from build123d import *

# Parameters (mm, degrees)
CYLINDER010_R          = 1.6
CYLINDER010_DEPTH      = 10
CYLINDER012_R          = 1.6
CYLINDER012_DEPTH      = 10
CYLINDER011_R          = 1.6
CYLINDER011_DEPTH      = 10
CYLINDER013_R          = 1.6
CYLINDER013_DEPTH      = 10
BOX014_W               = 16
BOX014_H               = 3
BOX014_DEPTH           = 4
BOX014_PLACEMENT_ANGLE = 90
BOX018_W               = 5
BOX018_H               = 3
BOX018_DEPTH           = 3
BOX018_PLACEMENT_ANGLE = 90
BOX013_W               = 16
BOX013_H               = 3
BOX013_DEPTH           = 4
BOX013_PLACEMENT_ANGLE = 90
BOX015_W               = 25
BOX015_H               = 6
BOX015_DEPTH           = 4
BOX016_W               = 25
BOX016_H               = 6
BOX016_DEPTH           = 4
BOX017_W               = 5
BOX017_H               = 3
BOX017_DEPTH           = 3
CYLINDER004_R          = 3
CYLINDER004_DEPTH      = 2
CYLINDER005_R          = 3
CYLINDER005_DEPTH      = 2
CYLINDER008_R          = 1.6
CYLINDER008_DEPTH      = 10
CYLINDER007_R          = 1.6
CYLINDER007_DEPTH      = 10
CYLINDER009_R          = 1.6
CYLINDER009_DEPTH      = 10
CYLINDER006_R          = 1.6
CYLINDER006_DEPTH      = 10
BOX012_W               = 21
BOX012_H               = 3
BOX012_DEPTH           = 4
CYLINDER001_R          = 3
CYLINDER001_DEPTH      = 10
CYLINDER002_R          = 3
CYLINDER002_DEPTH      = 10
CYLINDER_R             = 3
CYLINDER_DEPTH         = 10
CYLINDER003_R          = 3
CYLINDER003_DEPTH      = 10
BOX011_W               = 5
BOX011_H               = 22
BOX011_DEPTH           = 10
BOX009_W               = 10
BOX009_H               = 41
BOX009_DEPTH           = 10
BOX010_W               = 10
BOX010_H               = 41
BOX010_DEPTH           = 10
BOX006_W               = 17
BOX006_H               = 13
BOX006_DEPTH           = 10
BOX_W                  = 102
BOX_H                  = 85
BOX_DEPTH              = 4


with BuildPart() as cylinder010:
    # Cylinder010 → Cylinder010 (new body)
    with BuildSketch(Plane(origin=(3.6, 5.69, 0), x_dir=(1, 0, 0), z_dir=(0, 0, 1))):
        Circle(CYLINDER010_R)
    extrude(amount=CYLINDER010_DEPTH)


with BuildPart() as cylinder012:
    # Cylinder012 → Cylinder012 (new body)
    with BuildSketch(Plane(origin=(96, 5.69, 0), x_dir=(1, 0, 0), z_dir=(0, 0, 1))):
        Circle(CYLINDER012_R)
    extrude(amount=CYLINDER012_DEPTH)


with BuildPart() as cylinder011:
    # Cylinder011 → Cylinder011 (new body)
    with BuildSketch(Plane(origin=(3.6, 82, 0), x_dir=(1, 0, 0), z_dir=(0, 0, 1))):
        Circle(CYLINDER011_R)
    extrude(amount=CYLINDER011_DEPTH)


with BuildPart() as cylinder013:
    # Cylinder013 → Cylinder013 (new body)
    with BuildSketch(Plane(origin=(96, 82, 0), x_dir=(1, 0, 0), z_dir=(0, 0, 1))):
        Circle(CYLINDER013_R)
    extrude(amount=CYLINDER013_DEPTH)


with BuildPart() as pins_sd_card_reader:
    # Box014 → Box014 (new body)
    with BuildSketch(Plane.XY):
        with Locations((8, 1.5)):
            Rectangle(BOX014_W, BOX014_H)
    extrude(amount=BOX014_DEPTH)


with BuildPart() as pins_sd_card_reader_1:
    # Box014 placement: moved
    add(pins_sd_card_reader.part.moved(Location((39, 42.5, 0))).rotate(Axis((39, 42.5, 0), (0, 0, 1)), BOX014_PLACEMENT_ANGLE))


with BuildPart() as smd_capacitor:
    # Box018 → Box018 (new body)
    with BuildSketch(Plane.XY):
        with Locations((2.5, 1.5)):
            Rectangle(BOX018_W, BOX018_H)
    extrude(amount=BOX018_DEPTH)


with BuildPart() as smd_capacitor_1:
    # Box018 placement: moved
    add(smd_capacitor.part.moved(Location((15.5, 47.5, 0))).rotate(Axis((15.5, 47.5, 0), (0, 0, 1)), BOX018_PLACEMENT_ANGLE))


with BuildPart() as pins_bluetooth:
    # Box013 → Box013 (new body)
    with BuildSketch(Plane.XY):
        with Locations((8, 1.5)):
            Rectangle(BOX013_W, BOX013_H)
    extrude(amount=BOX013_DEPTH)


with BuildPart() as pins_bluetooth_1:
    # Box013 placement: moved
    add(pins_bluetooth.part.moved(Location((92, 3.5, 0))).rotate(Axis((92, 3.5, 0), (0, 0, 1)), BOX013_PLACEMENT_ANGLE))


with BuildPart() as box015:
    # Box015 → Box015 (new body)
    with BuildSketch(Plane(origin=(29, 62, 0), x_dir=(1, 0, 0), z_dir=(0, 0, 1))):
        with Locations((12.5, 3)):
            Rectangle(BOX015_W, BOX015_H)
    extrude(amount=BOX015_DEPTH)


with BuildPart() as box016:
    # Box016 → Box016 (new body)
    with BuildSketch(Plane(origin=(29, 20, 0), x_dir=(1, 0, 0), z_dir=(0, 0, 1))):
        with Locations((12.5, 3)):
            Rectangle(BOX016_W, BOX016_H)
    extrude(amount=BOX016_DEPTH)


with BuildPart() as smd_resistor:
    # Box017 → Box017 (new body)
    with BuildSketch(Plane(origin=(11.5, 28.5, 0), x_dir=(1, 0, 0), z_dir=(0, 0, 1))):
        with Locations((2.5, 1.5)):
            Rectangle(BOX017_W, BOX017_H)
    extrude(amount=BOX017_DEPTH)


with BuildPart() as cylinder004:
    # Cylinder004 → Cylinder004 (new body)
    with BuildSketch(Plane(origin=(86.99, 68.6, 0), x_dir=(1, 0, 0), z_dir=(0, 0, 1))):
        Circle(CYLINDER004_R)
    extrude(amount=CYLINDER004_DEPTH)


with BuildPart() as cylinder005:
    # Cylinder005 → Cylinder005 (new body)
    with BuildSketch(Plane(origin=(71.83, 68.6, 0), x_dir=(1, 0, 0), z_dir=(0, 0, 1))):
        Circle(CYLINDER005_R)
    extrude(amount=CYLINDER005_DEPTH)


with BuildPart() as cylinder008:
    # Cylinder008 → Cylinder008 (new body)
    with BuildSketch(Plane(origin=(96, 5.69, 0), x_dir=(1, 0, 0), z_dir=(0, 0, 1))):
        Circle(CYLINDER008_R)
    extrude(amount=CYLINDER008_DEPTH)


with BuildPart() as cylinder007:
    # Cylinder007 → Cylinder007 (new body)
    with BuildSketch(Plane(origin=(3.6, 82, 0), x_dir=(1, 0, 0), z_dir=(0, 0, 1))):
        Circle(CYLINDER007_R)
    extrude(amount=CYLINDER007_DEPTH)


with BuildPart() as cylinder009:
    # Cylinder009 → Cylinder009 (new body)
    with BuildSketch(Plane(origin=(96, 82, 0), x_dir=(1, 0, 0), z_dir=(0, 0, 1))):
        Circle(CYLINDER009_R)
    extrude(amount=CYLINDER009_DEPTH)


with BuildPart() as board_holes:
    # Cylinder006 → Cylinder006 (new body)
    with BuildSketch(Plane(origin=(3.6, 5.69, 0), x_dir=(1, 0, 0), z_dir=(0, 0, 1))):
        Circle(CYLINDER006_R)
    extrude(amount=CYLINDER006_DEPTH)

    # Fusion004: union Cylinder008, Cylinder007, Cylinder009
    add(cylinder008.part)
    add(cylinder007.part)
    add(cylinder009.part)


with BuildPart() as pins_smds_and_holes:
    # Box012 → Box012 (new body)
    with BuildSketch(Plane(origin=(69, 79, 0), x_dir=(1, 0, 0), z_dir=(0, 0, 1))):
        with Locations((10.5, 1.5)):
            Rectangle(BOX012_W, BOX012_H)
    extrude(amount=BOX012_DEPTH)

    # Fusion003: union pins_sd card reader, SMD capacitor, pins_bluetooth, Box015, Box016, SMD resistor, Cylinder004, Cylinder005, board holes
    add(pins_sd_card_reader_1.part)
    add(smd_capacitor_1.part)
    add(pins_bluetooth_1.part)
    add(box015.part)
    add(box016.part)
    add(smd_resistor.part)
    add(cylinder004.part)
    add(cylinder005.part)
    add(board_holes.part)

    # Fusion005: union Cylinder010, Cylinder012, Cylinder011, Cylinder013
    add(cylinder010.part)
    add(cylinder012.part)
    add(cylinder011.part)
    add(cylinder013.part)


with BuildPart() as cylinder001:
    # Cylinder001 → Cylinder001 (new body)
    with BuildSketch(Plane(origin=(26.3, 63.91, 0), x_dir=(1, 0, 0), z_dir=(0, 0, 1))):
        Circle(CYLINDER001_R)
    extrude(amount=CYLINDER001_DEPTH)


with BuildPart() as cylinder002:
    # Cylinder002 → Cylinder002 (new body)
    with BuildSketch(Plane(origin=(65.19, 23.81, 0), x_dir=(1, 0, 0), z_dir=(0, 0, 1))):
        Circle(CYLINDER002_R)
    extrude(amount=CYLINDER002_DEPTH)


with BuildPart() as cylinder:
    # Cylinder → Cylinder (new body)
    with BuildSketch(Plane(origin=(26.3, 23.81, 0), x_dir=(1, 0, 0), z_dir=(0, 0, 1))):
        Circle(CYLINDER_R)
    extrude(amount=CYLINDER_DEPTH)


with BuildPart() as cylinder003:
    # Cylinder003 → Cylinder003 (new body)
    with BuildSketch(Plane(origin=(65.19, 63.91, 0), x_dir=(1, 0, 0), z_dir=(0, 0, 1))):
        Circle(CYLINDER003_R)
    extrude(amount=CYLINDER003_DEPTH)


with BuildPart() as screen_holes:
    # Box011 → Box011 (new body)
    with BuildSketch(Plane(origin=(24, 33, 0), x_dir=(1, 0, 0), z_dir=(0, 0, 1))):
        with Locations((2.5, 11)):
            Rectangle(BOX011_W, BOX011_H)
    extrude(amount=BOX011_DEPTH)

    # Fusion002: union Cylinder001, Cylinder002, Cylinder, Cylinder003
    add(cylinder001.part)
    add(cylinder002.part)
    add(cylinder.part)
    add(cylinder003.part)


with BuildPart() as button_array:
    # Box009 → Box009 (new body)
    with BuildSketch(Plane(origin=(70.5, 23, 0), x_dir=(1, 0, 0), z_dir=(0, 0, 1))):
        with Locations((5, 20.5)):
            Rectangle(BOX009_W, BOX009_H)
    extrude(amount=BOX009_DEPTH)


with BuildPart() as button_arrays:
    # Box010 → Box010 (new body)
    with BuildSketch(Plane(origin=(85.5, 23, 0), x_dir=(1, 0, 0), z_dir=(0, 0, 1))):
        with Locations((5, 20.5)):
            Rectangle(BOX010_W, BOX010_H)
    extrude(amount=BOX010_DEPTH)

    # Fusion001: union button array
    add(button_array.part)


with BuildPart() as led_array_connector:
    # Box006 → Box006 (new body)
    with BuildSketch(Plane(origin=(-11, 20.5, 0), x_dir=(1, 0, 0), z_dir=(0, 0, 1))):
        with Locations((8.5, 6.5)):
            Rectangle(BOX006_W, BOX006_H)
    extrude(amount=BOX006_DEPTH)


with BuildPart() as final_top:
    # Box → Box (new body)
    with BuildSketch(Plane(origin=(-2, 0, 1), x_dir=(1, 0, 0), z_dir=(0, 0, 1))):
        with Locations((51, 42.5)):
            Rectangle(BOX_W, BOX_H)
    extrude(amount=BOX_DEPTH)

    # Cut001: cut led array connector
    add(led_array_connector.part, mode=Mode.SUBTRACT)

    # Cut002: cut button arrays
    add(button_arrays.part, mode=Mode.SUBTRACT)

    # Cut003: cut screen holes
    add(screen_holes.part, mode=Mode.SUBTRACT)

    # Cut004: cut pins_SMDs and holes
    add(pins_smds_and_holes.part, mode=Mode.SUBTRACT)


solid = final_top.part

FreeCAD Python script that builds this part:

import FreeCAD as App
import Part
import Sketcher
from FreeCAD import Vector
Q = App.Units.Quantity

doc = App.newDocument("Part")
body = doc.addObject("PartDesign::Body", "Body")

sketch1 = body.newObject("Sketcher::SketchObject", "Sketch")
sketch1.AttachmentSupport = (doc.getObject("XY_Plane"), [""])
sketch1.MapMode = "FlatFace"
sketch1.addGeometry(Part.Circle(Vector(3.6, 5.7, 0), Vector(0, 0, 1), 1.6), False)
sketch1.addConstraint(Sketcher.Constraint("Diameter", 0, Q("3.2 mm")))
sketch1.addConstraint(Sketcher.Constraint("DistanceX", -1, 1, 0, 3, Q("3.6 mm")))
sketch1.addConstraint(Sketcher.Constraint("DistanceY", -1, 1, 0, 3, Q("5.69 mm")))
pad1 = body.newObject("PartDesign::Pad", "Pad")
pad1.Profile = sketch1
pad1.Length = 10
body2 = doc.addObject("PartDesign::Body", "Body001")

sketch2 = body2.newObject("Sketcher::SketchObject", "Sketch001")
sketch2.AttachmentSupport = (doc.getObject("XY_Plane001"), [""])
sketch2.MapMode = "FlatFace"
sketch2.addGeometry(Part.Circle(Vector(96, 5.7, 0), Vector(0, 0, 1), 1.6), False)
sketch2.addConstraint(Sketcher.Constraint("Diameter", 0, Q("3.2 mm")))
sketch2.addConstraint(Sketcher.Constraint("DistanceX", -1, 1, 0, 3, Q("96 mm")))
sketch2.addConstraint(Sketcher.Constraint("DistanceY", -1, 1, 0, 3, Q("5.69 mm")))
pad2 = body2.newObject("PartDesign::Pad", "Pad001")
pad2.Profile = sketch2
pad2.Length = 10
body3 = doc.addObject("PartDesign::Body", "Body002")

sketch3 = body3.newObject("Sketcher::SketchObject", "Sketch002")
sketch3.AttachmentSupport = (doc.getObject("XY_Plane002"), [""])
sketch3.MapMode = "FlatFace"
sketch3.addGeometry(Part.Circle(Vector(3.6, 82, 0), Vector(0, 0, 1), 1.6), False)
sketch3.addConstraint(Sketcher.Constraint("Diameter", 0, Q("3.2 mm")))
sketch3.addConstraint(Sketcher.Constraint("DistanceY", -1, 1, 0, 3, Q("82 mm")))
sketch3.addConstraint(Sketcher.Constraint("DistanceX", -1, 1, 0, 3, Q("3.6 mm")))
pad3 = body3.newObject("PartDesign::Pad", "Pad002")
pad3.Profile = sketch3
pad3.Length = 10
body4 = doc.addObject("PartDesign::Body", "Body003")

sketch4 = body4.newObject("Sketcher::SketchObject", "Sketch003")
sketch4.AttachmentSupport = (doc.getObject("XY_Plane003"), [""])
sketch4.MapMode = "FlatFace"
sketch4.addGeometry(Part.Circle(Vector(96, 82, 0), Vector(0, 0, 1), 1.6), False)
sketch4.addConstraint(Sketcher.Constraint("Diameter", 0, Q("3.2 mm")))
sketch4.addConstraint(Sketcher.Constraint("DistanceX", -1, 1, 0, 3, Q("96 mm")))
sketch4.addConstraint(Sketcher.Constraint("DistanceY", -1, 1, 0, 3, Q("82 mm")))
pad4 = body4.newObject("PartDesign::Pad", "Pad003")
pad4.Profile = sketch4
pad4.Length = 10
body5 = doc.addObject("PartDesign::Body", "Body004")

sketch5 = body5.newObject("Sketcher::SketchObject", "Sketch004")
sketch5.AttachmentSupport = (doc.getObject("XY_Plane004"), [""])
sketch5.MapMode = "FlatFace"
sketch5.addGeometry(Part.LineSegment(Vector(0, 3, 0), Vector(0, 0, 0)), False)
sketch5.addGeometry(Part.LineSegment(Vector(0, 0, 0), Vector(16, 0, 0)), False)
sketch5.addGeometry(Part.LineSegment(Vector(16, 0, 0), Vector(16, 3, 0)), False)
sketch5.addGeometry(Part.LineSegment(Vector(16, 3, 0), Vector(0, 3, 0)), False)
sketch5.addConstraint(Sketcher.Constraint("Coincident", 0, 2, 1, 1))
sketch5.addConstraint(Sketcher.Constraint("Coincident", 1, 2, 2, 1))
sketch5.addConstraint(Sketcher.Constraint("Coincident", 2, 2, 3, 1))
sketch5.addConstraint(Sketcher.Constraint("Coincident", 3, 2, 0, 1))
sketch5.addConstraint(Sketcher.Constraint("Vertical", 0))
sketch5.addConstraint(Sketcher.Constraint("Horizontal", 1))
sketch5.addConstraint(Sketcher.Constraint("Vertical", 2))
sketch5.addConstraint(Sketcher.Constraint("Horizontal", 3))
sketch5.addConstraint(Sketcher.Constraint("Coincident", 0, 2, -1, 1))
sketch5.addConstraint(Sketcher.Constraint("DistanceX", 1, 1, 1, 2, Q("16 mm")))
sketch5.addConstraint(Sketcher.Constraint("DistanceY", 0, 2, 0, 1, Q("3 mm")))
pad5 = body5.newObject("PartDesign::Pad", "Pad004")
pad5.Profile = sketch5
pad5.Length = 4
body6 = doc.addObject("PartDesign::Body", "Body005")
doc.recompute()

body5.Placement = App.Placement(Vector(39, 42.5, 0), App.Rotation(Vector(0, 0, 1), 90))
boolean = body6.newObject("PartDesign::Boolean", "Boolean")
boolean.Type = "Fuse"
boolean.addObjects([body5])
body7 = doc.addObject("PartDesign::Body", "Body006")

sketch6 = body7.newObject("Sketcher::SketchObject", "Sketch005")
sketch6.AttachmentSupport = (doc.getObject("XY_Plane006"), [""])
sketch6.MapMode = "FlatFace"
sketch6.addGeometry(Part.LineSegment(Vector(0, 3, 0), Vector(0, 0, 0)), False)
sketch6.addGeometry(Part.LineSegment(Vector(0, 0, 0), Vector(5, 0, 0)), False)
sketch6.addGeometry(Part.LineSegment(Vector(5, 0, 0), Vector(5, 3, 0)), False)
sketch6.addGeometry(Part.LineSegment(Vector(5, 3, 0), Vector(0, 3, 0)), False)
sketch6.addConstraint(Sketcher.Constraint("Coincident", 0, 2, 1, 1))
sketch6.addConstraint(Sketcher.Constraint("Coincident", 1, 2, 2, 1))
sketch6.addConstraint(Sketcher.Constraint("Coincident", 2, 2, 3, 1))
sketch6.addConstraint(Sketcher.Constraint("Coincident", 3, 2, 0, 1))
sketch6.addConstraint(Sketcher.Constraint("Vertical", 0))
sketch6.addConstraint(Sketcher.Constraint("Horizontal", 1))
sketch6.addConstraint(Sketcher.Constraint("Vertical", 2))
sketch6.addConstraint(Sketcher.Constraint("Horizontal", 3))
sketch6.addConstraint(Sketcher.Constraint("Coincident", 0, 2, -1, 1))
sketch6.addConstraint(Sketcher.Constraint("DistanceX", 1, 1, 1, 2, Q("5 mm")))
sketch6.addConstraint(Sketcher.Constraint("DistanceY", 0, 2, 0, 1, Q("3 mm")))
pad6 = body7.newObject("PartDesign::Pad", "Pad005")
pad6.Profile = sketch6
pad6.Length = 3
body8 = doc.addObject("PartDesign::Body", "Body007")
doc.recompute()

body7.Placement = App.Placement(Vector(15.5, 47.5, 0), App.Rotation(Vector(0, 0, 1), 90))
boolean2 = body8.newObject("PartDesign::Boolean", "Boolean001")
boolean2.Type = "Fuse"
boolean2.addObjects([body7])
body9 = doc.addObject("PartDesign::Body", "Body008")

sketch7 = body9.newObject("Sketcher::SketchObject", "Sketch006")
sketch7.AttachmentSupport = (doc.getObject("XY_Plane008"), [""])
sketch7.MapMode = "FlatFace"
sketch7.addGeometry(Part.LineSegment(Vector(0, 3, 0), Vector(0, 0, 0)), False)
sketch7.addGeometry(Part.LineSegment(Vector(0, 0, 0), Vector(16, 0, 0)), False)
sketch7.addGeometry(Part.LineSegment(Vector(16, 0, 0), Vector(16, 3, 0)), False)
sketch7.addGeometry(Part.LineSegment(Vector(16, 3, 0), Vector(0, 3, 0)), False)
sketch7.addConstraint(Sketcher.Constraint("Coincident", 0, 2, 1, 1))
sketch7.addConstraint(Sketcher.Constraint("Coincident", 1, 2, 2, 1))
sketch7.addConstraint(Sketcher.Constraint("Coincident", 2, 2, 3, 1))
sketch7.addConstraint(Sketcher.Constraint("Coincident", 3, 2, 0, 1))
sketch7.addConstraint(Sketcher.Constraint("Vertical", 0))
sketch7.addConstraint(Sketcher.Constraint("Horizontal", 1))
sketch7.addConstraint(Sketcher.Constraint("Vertical", 2))
sketch7.addConstraint(Sketcher.Constraint("Horizontal", 3))
sketch7.addConstraint(Sketcher.Constraint("Coincident", 0, 2, -1, 1))
sketch7.addConstraint(Sketcher.Constraint("DistanceX", 1, 1, 1, 2, Q("16 mm")))
sketch7.addConstraint(Sketcher.Constraint("DistanceY", 0, 2, 0, 1, Q("3 mm")))
pad7 = body9.newObject("PartDesign::Pad", "Pad006")
pad7.Profile = sketch7
pad7.Length = 4
body10 = doc.addObject("PartDesign::Body", "Body009")
doc.recompute()

body9.Placement = App.Placement(Vector(92, 3.5, 0), App.Rotation(Vector(0, 0, 1), 90))
boolean3 = body10.newObject("PartDesign::Boolean", "Boolean002")
boolean3.Type = "Fuse"
boolean3.addObjects([body9])
body11 = doc.addObject("PartDesign::Body", "Body010")

sketch8 = body11.newObject("Sketcher::SketchObject", "Sketch007")
sketch8.AttachmentSupport = (doc.getObject("XY_Plane010"), [""])
sketch8.MapMode = "FlatFace"
sketch8.addGeometry(Part.LineSegment(Vector(29, 68, 0), Vector(29, 62, 0)), False)
sketch8.addGeometry(Part.LineSegment(Vector(29, 62, 0), Vector(54, 62, 0)), False)
sketch8.addGeometry(Part.LineSegment(Vector(54, 62, 0), Vector(54, 68, 0)), False)
sketch8.addGeometry(Part.LineSegment(Vector(54, 68, 0), Vector(29, 68, 0)), False)
sketch8.addConstraint(Sketcher.Constraint("Coincident", 0, 2, 1, 1))
sketch8.addConstraint(Sketcher.Constraint("Coincident", 1, 2, 2, 1))
sketch8.addConstraint(Sketcher.Constraint("Coincident", 2, 2, 3, 1))
sketch8.addConstraint(Sketcher.Constraint("Coincident", 3, 2, 0, 1))
sketch8.addConstraint(Sketcher.Constraint("Vertical", 0))
sketch8.addConstraint(Sketcher.Constraint("Horizontal", 1))
sketch8.addConstraint(Sketcher.Constraint("Vertical", 2))
sketch8.addConstraint(Sketcher.Constraint("Horizontal", 3))
sketch8.addConstraint(Sketcher.Constraint("DistanceX", 1, 1, 1, 2, Q("25 mm")))
sketch8.addConstraint(Sketcher.Constraint("DistanceY", 0, 2, 0, 1, Q("6 mm")))
sketch8.addConstraint(Sketcher.Constraint("DistanceX", -1, 1, 0, 2, Q("29 mm")))
sketch8.addConstraint(Sketcher.Constraint("DistanceY", -1, 1, 0, 2, Q("62 mm")))
pad8 = body11.newObject("PartDesign::Pad", "Pad007")
pad8.Profile = sketch8
pad8.Length = 4
body12 = doc.addObject("PartDesign::Body", "Body011")

sketch9 = body12.newObject("Sketcher::SketchObject", "Sketch008")
sketch9.AttachmentSupport = (doc.getObject("XY_Plane011"), [""])
sketch9.MapMode = "FlatFace"
sketch9.addGeometry(Part.LineSegment(Vector(29, 26, 0), Vector(29, 20, 0)), False)
sketch9.addGeometry(Part.LineSegment(Vector(29, 20, 0), Vector(54, 20, 0)), False)
sketch9.addGeometry(Part.LineSegment(Vector(54, 20, 0), Vector(54, 26, 0)), False)
sketch9.addGeometry(Part.LineSegment(Vector(54, 26, 0), Vector(29, 26, 0)), False)
sketch9.addConstraint(Sketcher.Constraint("Coincident", 0, 2, 1, 1))
sketch9.addConstraint(Sketcher.Constraint("Coincident", 1, 2, 2, 1))
sketch9.addConstraint(Sketcher.Constraint("Coincident", 2, 2, 3, 1))
sketch9.addConstraint(Sketcher.Constraint("Coincident", 3, 2, 0, 1))
sketch9.addConstraint(Sketcher.Constraint("Vertical", 0))
sketch9.addConstraint(Sketcher.Constraint("Horizontal", 1))
sketch9.addConstraint(Sketcher.Constraint("Vertical", 2))
sketch9.addConstraint(Sketcher.Constraint("Horizontal", 3))
sketch9.addConstraint(Sketcher.Constraint("DistanceX", 1, 1, 1, 2, Q("25 mm")))
sketch9.addConstraint(Sketcher.Constraint("DistanceY", 0, 2, 0, 1, Q("6 mm")))
sketch9.addConstraint(Sketcher.Constraint("DistanceX", -1, 1, 0, 2, Q("29 mm")))
sketch9.addConstraint(Sketcher.Constraint("DistanceY", -1, 1, 0, 2, Q("20 mm")))
pad9 = body12.newObject("PartDesign::Pad", "Pad008")
pad9.Profile = sketch9
pad9.Length = 4
body13 = doc.addObject("PartDesign::Body", "Body012")

sketch10 = body13.newObject("Sketcher::SketchObject", "Sketch009")
sketch10.AttachmentSupport = (doc.getObject("XY_Plane012"), [""])
sketch10.MapMode = "FlatFace"
sketch10.addGeometry(Part.LineSegment(Vector(11.5, 31.5, 0), Vector(11.5, 28.5, 0)), False)
sketch10.addGeometry(Part.LineSegment(Vector(11.5, 28.5, 0), Vector(16.5, 28.5, 0)), False)
sketch10.addGeometry(Part.LineSegment(Vector(16.5, 28.5, 0), Vector(16.5, 31.5, 0)), False)
sketch10.addGeometry(Part.LineSegment(Vector(16.5, 31.5, 0), Vector(11.5, 31.5, 0)), False)
sketch10.addConstraint(Sketcher.Constraint("Coincident", 0, 2, 1, 1))
sketch10.addConstraint(Sketcher.Constraint("Coincident", 1, 2, 2, 1))
sketch10.addConstraint(Sketcher.Constraint("Coincident", 2, 2, 3, 1))
sketch10.addConstraint(Sketcher.Constraint("Coincident", 3, 2, 0, 1))
sketch10.addConstraint(Sketcher.Constraint("Vertical", 0))
sketch10.addConstraint(Sketcher.Constraint("Horizontal", 1))
sketch10.addConstraint(Sketcher.Constraint("Vertical", 2))
sketch10.addConstraint(Sketcher.Constraint("Horizontal", 3))
sketch10.addConstraint(Sketcher.Constraint("DistanceX", 1, 1, 1, 2, Q("5 mm")))
sketch10.addConstraint(Sketcher.Constraint("DistanceY", 0, 2, 0, 1, Q("3 mm")))
sketch10.addConstraint(Sketcher.Constraint("DistanceX", -1, 1, 0, 2, Q("11.5 mm")))
sketch10.addConstraint(Sketcher.Constraint("DistanceY", -1, 1, 0, 2, Q("28.5 mm")))
pad10 = body13.newObject("PartDesign::Pad", "Pad009")
pad10.Profile = sketch10
pad10.Length = 3
body14 = doc.addObject("PartDesign::Body", "Body013")

sketch11 = body14.newObject("Sketcher::SketchObject", "Sketch010")
sketch11.AttachmentSupport = (doc.getObject("XY_Plane013"), [""])
sketch11.MapMode = "FlatFace"
sketch11.addGeometry(Part.Circle(Vector(87, 68.6, 0), Vector(0, 0, 1), 3), False)
sketch11.addConstraint(Sketcher.Constraint("Diameter", 0, Q("6 mm")))
sketch11.addConstraint(Sketcher.Constraint("DistanceY", -1, 1, 0, 3, Q("68.6 mm")))
sketch11.addConstraint(Sketcher.Constraint("DistanceX", -1, 1, 0, 3, Q("86.99 mm")))
pad11 = body14.newObject("PartDesign::Pad", "Pad010")
pad11.Profile = sketch11
pad11.Length = 2
body15 = doc.addObject("PartDesign::Body", "Body014")

sketch12 = body15.newObject("Sketcher::SketchObject", "Sketch011")
sketch12.AttachmentSupport = (doc.getObject("XY_Plane014"), [""])
sketch12.MapMode = "FlatFace"
sketch12.addGeometry(Part.Circle(Vector(71.8, 68.6, 0), Vector(0, 0, 1), 3), False)
sketch12.addConstraint(Sketcher.Constraint("Diameter", 0, Q("6 mm")))
sketch12.addConstraint(Sketcher.Constraint("DistanceY", -1, 1, 0, 3, Q("68.6 mm")))
sketch12.addConstraint(Sketcher.Constraint("DistanceX", -1, 1, 0, 3, Q("71.83 mm")))
pad12 = body15.newObject("PartDesign::Pad", "Pad011")
pad12.Profile = sketch12
pad12.Length = 2
body16 = doc.addObject("PartDesign::Body", "Body015")

sketch13 = body16.newObject("Sketcher::SketchObject", "Sketch012")
sketch13.AttachmentSupport = (doc.getObject("XY_Plane015"), [""])
sketch13.MapMode = "FlatFace"
sketch13.addGeometry(Part.Circle(Vector(96, 5.7, 0), Vector(0, 0, 1), 1.6), False)
sketch13.addConstraint(Sketcher.Constraint("Diameter", 0, Q("3.2 mm")))
sketch13.addConstraint(Sketcher.Constraint("DistanceX", -1, 1, 0, 3, Q("96 mm")))
sketch13.addConstraint(Sketcher.Constraint("DistanceY", -1, 1, 0, 3, Q("5.69 mm")))
pad13 = body16.newObject("PartDesign::Pad", "Pad012")
pad13.Profile = sketch13
pad13.Length = 10
body17 = doc.addObject("PartDesign::Body", "Body016")

sketch14 = body17.newObject("Sketcher::SketchObject", "Sketch013")
sketch14.AttachmentSupport = (doc.getObject("XY_Plane016"), [""])
sketch14.MapMode = "FlatFace"
sketch14.addGeometry(Part.Circle(Vector(3.6, 82, 0), Vector(0, 0, 1), 1.6), False)
sketch14.addConstraint(Sketcher.Constraint("Diameter", 0, Q("3.2 mm")))
sketch14.addConstraint(Sketcher.Constraint("DistanceY", -1, 1, 0, 3, Q("82 mm")))
sketch14.addConstraint(Sketcher.Constraint("DistanceX", -1, 1, 0, 3, Q("3.6 mm")))
pad14 = body17.newObject("PartDesign::Pad", "Pad013")
pad14.Profile = sketch14
pad14.Length = 10
body18 = doc.addObject("PartDesign::Body", "Body017")

sketch15 = body18.newObject("Sketcher::SketchObject", "Sketch014")
sketch15.AttachmentSupport = (doc.getObject("XY_Plane017"), [""])
sketch15.MapMode = "FlatFace"
sketch15.addGeometry(Part.Circle(Vector(96, 82, 0), Vector(0, 0, 1), 1.6), False)
sketch15.addConstraint(Sketcher.Constraint("Diameter", 0, Q("3.2 mm")))
sketch15.addConstraint(Sketcher.Constraint("DistanceX", -1, 1, 0, 3, Q("96 mm")))
sketch15.addConstraint(Sketcher.Constraint("DistanceY", -1, 1, 0, 3, Q("82 mm")))
pad15 = body18.newObject("PartDesign::Pad", "Pad014")
pad15.Profile = sketch15
pad15.Length = 10
body19 = doc.addObject("PartDesign::Body", "Body018")
body19.AllowCompound = True

sketch16 = body19.newObject("Sketcher::SketchObject", "Sketch015")
sketch16.AttachmentSupport = (doc.getObject("XY_Plane018"), [""])
sketch16.MapMode = "FlatFace"
sketch16.addGeometry(Part.Circle(Vector(3.6, 5.7, 0), Vector(0, 0, 1), 1.6), False)
sketch16.addConstraint(Sketcher.Constraint("Diameter", 0, Q("3.2 mm")))
sketch16.addConstraint(Sketcher.Constraint("DistanceX", -1, 1, 0, 3, Q("3.6 mm")))
sketch16.addConstraint(Sketcher.Constraint("DistanceY", -1, 1, 0, 3, Q("5.69 mm")))
pad16 = body19.newObject("PartDesign::Pad", "Pad015")
pad16.Profile = sketch16
pad16.Length = 10
doc.recompute()

boolean4 = body19.newObject("PartDesign::Boolean", "Boolean003")
boolean4.Type = "Fuse"
boolean4.addObjects([body16])
doc.recompute()

boolean5 = body19.newObject("PartDesign::Boolean", "Boolean004")
boolean5.Type = "Fuse"
boolean5.addObjects([body17])
doc.recompute()

boolean6 = body19.newObject("PartDesign::Boolean", "Boolean005")
boolean6.Type = "Fuse"
boolean6.addObjects([body18])
body20 = doc.addObject("PartDesign::Body", "Body019")
body20.AllowCompound = True

sketch17 = body20.newObject("Sketcher::SketchObject", "Sketch016")
sketch17.AttachmentSupport = (doc.getObject("XY_Plane019"), [""])
sketch17.MapMode = "FlatFace"
sketch17.addGeometry(Part.LineSegment(Vector(69, 82, 0), Vector(69, 79, 0)), False)
sketch17.addGeometry(Part.LineSegment(Vector(69, 79, 0), Vector(90, 79, 0)), False)
sketch17.addGeometry(Part.LineSegment(Vector(90, 79, 0), Vector(90, 82, 0)), False)
sketch17.addGeometry(Part.LineSegment(Vector(90, 82, 0), Vector(69, 82, 0)), False)
sketch17.addConstraint(Sketcher.Constraint("Coincident", 0, 2, 1, 1))
sketch17.addConstraint(Sketcher.Constraint("Coincident", 1, 2, 2, 1))
sketch17.addConstraint(Sketcher.Constraint("Coincident", 2, 2, 3, 1))
sketch17.addConstraint(Sketcher.Constraint("Coincident", 3, 2, 0, 1))
sketch17.addConstraint(Sketcher.Constraint("Vertical", 0))
sketch17.addConstraint(Sketcher.Constraint("Horizontal", 1))
sketch17.addConstraint(Sketcher.Constraint("Vertical", 2))
sketch17.addConstraint(Sketcher.Constraint("Horizontal", 3))
sketch17.addConstraint(Sketcher.Constraint("DistanceX", 1, 1, 1, 2, Q("21 mm")))
sketch17.addConstraint(Sketcher.Constraint("DistanceY", 0, 2, 0, 1, Q("3 mm")))
sketch17.addConstraint(Sketcher.Constraint("DistanceX", -1, 1, 0, 2, Q("69 mm")))
sketch17.addConstraint(Sketcher.Constraint("DistanceY", -1, 1, 0, 2, Q("79 mm")))
pad17 = body20.newObject("PartDesign::Pad", "Pad016")
pad17.Profile = sketch17
pad17.Length = 4
doc.recompute()

boolean7 = body20.newObject("PartDesign::Boolean", "Boolean006")
boolean7.Type = "Fuse"
boolean7.addObjects([body6])
doc.recompute()

boolean8 = body20.newObject("PartDesign::Boolean", "Boolean007")
boolean8.Type = "Fuse"
boolean8.addObjects([body8])
doc.recompute()

boolean9 = body20.newObject("PartDesign::Boolean", "Boolean008")
boolean9.Type = "Fuse"
boolean9.addObjects([body10])
doc.recompute()

boolean10 = body20.newObject("PartDesign::Boolean", "Boolean009")
boolean10.Type = "Fuse"
boolean10.addObjects([body11])
doc.recompute()

boolean11 = body20.newObject("PartDesign::Boolean", "Boolean010")
boolean11.Type = "Fuse"
boolean11.addObjects([body12])
doc.recompute()

boolean12 = body20.newObject("PartDesign::Boolean", "Boolean011")
boolean12.Type = "Fuse"
boolean12.addObjects([body13])
doc.recompute()

boolean13 = body20.newObject("PartDesign::Boolean", "Boolean012")
boolean13.Type = "Fuse"
boolean13.addObjects([body14])
doc.recompute()

boolean14 = body20.newObject("PartDesign::Boolean", "Boolean013")
boolean14.Type = "Fuse"
boolean14.addObjects([body15])
doc.recompute()

boolean15 = body20.newObject("PartDesign::Boolean", "Boolean014")
boolean15.Type = "Fuse"
boolean15.addObjects([body19])
doc.recompute()

boolean16 = body20.newObject("PartDesign::Boolean", "Boolean015")
boolean16.Type = "Fuse"
boolean16.addObjects([body])
doc.recompute()

boolean17 = body20.newObject("PartDesign::Boolean", "Boolean016")
boolean17.Type = "Fuse"
boolean17.addObjects([body2])
doc.recompute()

boolean18 = body20.newObject("PartDesign::Boolean", "Boolean017")
boolean18.Type = "Fuse"
boolean18.addObjects([body3])
doc.recompute()

boolean19 = body20.newObject("PartDesign::Boolean", "Boolean018")
boolean19.Type = "Fuse"
boolean19.addObjects([body4])
body21 = doc.addObject("PartDesign::Body", "Body020")

sketch18 = body21.newObject("Sketcher::SketchObject", "Sketch017")
sketch18.AttachmentSupport = (doc.getObject("XY_Plane020"), [""])
sketch18.MapMode = "FlatFace"
sketch18.addGeometry(Part.Circle(Vector(26.3, 63.9, 0), Vector(0, 0, 1), 3), False)
sketch18.addConstraint(Sketcher.Constraint("Diameter", 0, Q("6 mm")))
sketch18.addConstraint(Sketcher.Constraint("DistanceX", -1, 1, 0, 3, Q("26.3 mm")))
sketch18.addConstraint(Sketcher.Constraint("DistanceY", -1, 1, 0, 3, Q("63.91 mm")))
pad18 = body21.newObject("PartDesign::Pad", "Pad017")
pad18.Profile = sketch18
pad18.Length = 10
body22 = doc.addObject("PartDesign::Body", "Body021")

sketch19 = body22.newObject("Sketcher::SketchObject", "Sketch018")
sketch19.AttachmentSupport = (doc.getObject("XY_Plane021"), [""])
sketch19.MapMode = "FlatFace"
sketch19.addGeometry(Part.Circle(Vector(65.2, 23.8, 0), Vector(0, 0, 1), 3), False)
sketch19.addConstraint(Sketcher.Constraint("Diameter", 0, Q("6 mm")))
sketch19.addConstraint(Sketcher.Constraint("DistanceX", -1, 1, 0, 3, Q("65.19 mm")))
sketch19.addConstraint(Sketcher.Constraint("DistanceY", -1, 1, 0, 3, Q("23.81 mm")))
pad19 = body22.newObject("PartDesign::Pad", "Pad018")
pad19.Profile = sketch19
pad19.Length = 10
body23 = doc.addObject("PartDesign::Body", "Body022")

sketch20 = body23.newObject("Sketcher::SketchObject", "Sketch019")
sketch20.AttachmentSupport = (doc.getObject("XY_Plane022"), [""])
sketch20.MapMode = "FlatFace"
sketch20.addGeometry(Part.Circle(Vector(26.3, 23.8, 0), Vector(0, 0, 1), 3), False)
sketch20.addConstraint(Sketcher.Constraint("Diameter", 0, Q("6 mm")))
sketch20.addConstraint(Sketcher.Constraint("DistanceX", -1, 1, 0, 3, Q("26.3 mm")))
sketch20.addConstraint(Sketcher.Constraint("DistanceY", -1, 1, 0, 3, Q("23.81 mm")))
pad20 = body23.newObject("PartDesign::Pad", "Pad019")
pad20.Profile = sketch20
pad20.Length = 10
body24 = doc.addObject("PartDesign::Body", "Body023")

sketch21 = body24.newObject("Sketcher::SketchObject", "Sketch020")
sketch21.AttachmentSupport = (doc.getObject("XY_Plane023"), [""])
sketch21.MapMode = "FlatFace"
sketch21.addGeometry(Part.Circle(Vector(65.2, 63.9, 0), Vector(0, 0, 1), 3), False)
sketch21.addConstraint(Sketcher.Constraint("Diameter", 0, Q("6 mm")))
sketch21.addConstraint(Sketcher.Constraint("DistanceX", -1, 1, 0, 3, Q("65.19 mm")))
sketch21.addConstraint(Sketcher.Constraint("DistanceY", -1, 1, 0, 3, Q("63.91 mm")))
pad21 = body24.newObject("PartDesign::Pad", "Pad020")
pad21.Profile = sketch21
pad21.Length = 10
body25 = doc.addObject("PartDesign::Body", "Body024")
body25.AllowCompound = True

sketch22 = body25.newObject("Sketcher::SketchObject", "Sketch021")
sketch22.AttachmentSupport = (doc.getObject("XY_Plane024"), [""])
sketch22.MapMode = "FlatFace"
sketch22.addGeometry(Part.LineSegment(Vector(24, 55, 0), Vector(24, 33, 0)), False)
sketch22.addGeometry(Part.LineSegment(Vector(24, 33, 0), Vector(29, 33, 0)), False)
sketch22.addGeometry(Part.LineSegment(Vector(29, 33, 0), Vector(29, 55, 0)), False)
sketch22.addGeometry(Part.LineSegment(Vector(29, 55, 0), Vector(24, 55, 0)), False)
sketch22.addConstraint(Sketcher.Constraint("Coincident", 0, 2, 1, 1))
sketch22.addConstraint(Sketcher.Constraint("Coincident", 1, 2, 2, 1))
sketch22.addConstraint(Sketcher.Constraint("Coincident", 2, 2, 3, 1))
sketch22.addConstraint(Sketcher.Constraint("Coincident", 3, 2, 0, 1))
sketch22.addConstraint(Sketcher.Constraint("Vertical", 0))
sketch22.addConstraint(Sketcher.Constraint("Horizontal", 1))
sketch22.addConstraint(Sketcher.Constraint("Vertical", 2))
sketch22.addConstraint(Sketcher.Constraint("Horizontal", 3))
sketch22.addConstraint(Sketcher.Constraint("DistanceX", 1, 1, 1, 2, Q("5 mm")))
sketch22.addConstraint(Sketcher.Constraint("DistanceY", 0, 2, 0, 1, Q("22 mm")))
sketch22.addConstraint(Sketcher.Constraint("DistanceX", -1, 1, 0, 2, Q("24 mm")))
sketch22.addConstraint(Sketcher.Constraint("DistanceY", -1, 1, 0, 2, Q("33 mm")))
pad22 = body25.newObject("PartDesign::Pad", "Pad021")
pad22.Profile = sketch22
pad22.Length = 10
doc.recompute()

boolean20 = body25.newObject("PartDesign::Boolean", "Boolean019")
boolean20.Type = "Fuse"
boolean20.addObjects([body21])
doc.recompute()

boolean21 = body25.newObject("PartDesign::Boolean", "Boolean020")
boolean21.Type = "Fuse"
boolean21.addObjects([body22])
doc.recompute()

boolean22 = body25.newObject("PartDesign::Boolean", "Boolean021")
boolean22.Type = "Fuse"
boolean22.addObjects([body23])
doc.recompute()

boolean23 = body25.newObject("PartDesign::Boolean", "Boolean022")
boolean23.Type = "Fuse"
boolean23.addObjects([body24])
body26 = doc.addObject("PartDesign::Body", "Body025")

sketch23 = body26.newObject("Sketcher::SketchObject", "Sketch022")
sketch23.AttachmentSupport = (doc.getObject("XY_Plane025"), [""])
sketch23.MapMode = "FlatFace"
sketch23.addGeometry(Part.LineSegment(Vector(70, 64, 0), Vector(70, 23, 0)), False)
sketch23.addGeometry(Part.LineSegment(Vector(70, 23, 0), Vector(80, 23, 0)), False)
sketch23.addGeometry(Part.LineSegment(Vector(80, 23, 0), Vector(80, 64, 0)), False)
sketch23.addGeometry(Part.LineSegment(Vector(80, 64, 0), Vector(70, 64, 0)), False)
sketch23.addConstraint(Sketcher.Constraint("Coincident", 0, 2, 1, 1))
sketch23.addConstraint(Sketcher.Constraint("Coincident", 1, 2, 2, 1))
sketch23.addConstraint(Sketcher.Constraint("Coincident", 2, 2, 3, 1))
sketch23.addConstraint(Sketcher.Constraint("Coincident", 3, 2, 0, 1))
sketch23.addConstraint(Sketcher.Constraint("Vertical", 0))
sketch23.addConstraint(Sketcher.Constraint("Horizontal", 1))
sketch23.addConstraint(Sketcher.Constraint("Vertical", 2))
sketch23.addConstraint(Sketcher.Constraint("Horizontal", 3))
sketch23.addConstraint(Sketcher.Constraint("DistanceX", 1, 1, 1, 2, Q("10 mm")))
sketch23.addConstraint(Sketcher.Constraint("DistanceY", 0, 2, 0, 1, Q("41 mm")))
sketch23.addConstraint(Sketcher.Constraint("DistanceY", -1, 1, 0, 2, Q("23 mm")))
sketch23.addConstraint(Sketcher.Constraint("DistanceX", -1, 1, 0, 2, Q("70.5 mm")))
pad23 = body26.newObject("PartDesign::Pad", "Pad022")
pad23.Profile = sketch23
pad23.Length = 10
body27 = doc.addObject("PartDesign::Body", "Body026")
body27.AllowCompound = True

sketch24 = body27.newObject("Sketcher::SketchObject", "Sketch023")
sketch24.AttachmentSupport = (doc.getObject("XY_Plane026"), [""])
sketch24.MapMode = "FlatFace"
sketch24.addGeometry(Part.LineSegment(Vector(86, 64, 0), Vector(86, 23, 0)), False)
sketch24.addGeometry(Part.LineSegment(Vector(86, 23, 0), Vector(96, 23, 0)), False)
sketch24.addGeometry(Part.LineSegment(Vector(96, 23, 0), Vector(96, 64, 0)), False)
sketch24.addGeometry(Part.LineSegment(Vector(96, 64, 0), Vector(86, 64, 0)), False)
sketch24.addConstraint(Sketcher.Constraint("Coincident", 0, 2, 1, 1))
sketch24.addConstraint(Sketcher.Constraint("Coincident", 1, 2, 2, 1))
sketch24.addConstraint(Sketcher.Constraint("Coincident", 2, 2, 3, 1))
sketch24.addConstraint(Sketcher.Constraint("Coincident", 3, 2, 0, 1))
sketch24.addConstraint(Sketcher.Constraint("Vertical", 0))
sketch24.addConstraint(Sketcher.Constraint("Horizontal", 1))
sketch24.addConstraint(Sketcher.Constraint("Vertical", 2))
sketch24.addConstraint(Sketcher.Constraint("Horizontal", 3))
sketch24.addConstraint(Sketcher.Constraint("DistanceX", 1, 1, 1, 2, Q("10 mm")))
sketch24.addConstraint(Sketcher.Constraint("DistanceY", 0, 2, 0, 1, Q("41 mm")))
sketch24.addConstraint(Sketcher.Constraint("DistanceY", -1, 1, 0, 2, Q("23 mm")))
sketch24.addConstraint(Sketcher.Constraint("DistanceX", -1, 1, 0, 2, Q("85.5 mm")))
pad24 = body27.newObject("PartDesign::Pad", "Pad023")
pad24.Profile = sketch24
pad24.Length = 10
doc.recompute()

boolean24 = body27.newObject("PartDesign::Boolean", "Boolean023")
boolean24.Type = "Fuse"
boolean24.addObjects([body26])
body28 = doc.addObject("PartDesign::Body", "Body027")

sketch25 = body28.newObject("Sketcher::SketchObject", "Sketch024")
sketch25.AttachmentSupport = (doc.getObject("XY_Plane027"), [""])
sketch25.MapMode = "FlatFace"
sketch25.addGeometry(Part.LineSegment(Vector(-11, 34, 0), Vector(-11, 20, 0)), False)
sketch25.addGeometry(Part.LineSegment(Vector(-11, 20, 0), Vector(6, 20, 0)), False)
sketch25.addGeometry(Part.LineSegment(Vector(6, 20, 0), Vector(6, 34, 0)), False)
sketch25.addGeometry(Part.LineSegment(Vector(6, 34, 0), Vector(-11, 34, 0)), False)
sketch25.addConstraint(Sketcher.Constraint("Coincident", 0, 2, 1, 1))
sketch25.addConstraint(Sketcher.Constraint("Coincident", 1, 2, 2, 1))
sketch25.addConstraint(Sketcher.Constraint("Coincident", 2, 2, 3, 1))
sketch25.addConstraint(Sketcher.Constraint("Coincident", 3, 2, 0, 1))
sketch25.addConstraint(Sketcher.Constraint("Vertical", 0))
sketch25.addConstraint(Sketcher.Constraint("Horizontal", 1))
sketch25.addConstraint(Sketcher.Constraint("Vertical", 2))
sketch25.addConstraint(Sketcher.Constraint("Horizontal", 3))
sketch25.addConstraint(Sketcher.Constraint("DistanceX", 1, 1, 1, 2, Q("17 mm")))
sketch25.addConstraint(Sketcher.Constraint("DistanceY", 0, 2, 0, 1, Q("13 mm")))
sketch25.addConstraint(Sketcher.Constraint("DistanceX", 0, 2, -1, 1, Q("11 mm")))
sketch25.addConstraint(Sketcher.Constraint("DistanceY", -1, 1, 0, 2, Q("20.5 mm")))
pad25 = body28.newObject("PartDesign::Pad", "Pad024")
pad25.Profile = sketch25
pad25.Length = 10
body29 = doc.addObject("PartDesign::Body", "Body028")

sketch26 = body29.newObject("Sketcher::SketchObject", "Sketch025")
sketch26.AttachmentSupport = (doc.getObject("XY_Plane028"), [""])
sketch26.MapMode = "FlatFace"
sketch26.AttachmentOffset = App.Placement(Vector(0, 0, 1), App.Rotation())
sketch26.addGeometry(Part.LineSegment(Vector(-2, 85, 0), Vector(-2, 0, 0)), False)
sketch26.addGeometry(Part.LineSegment(Vector(-2, 0, 0), Vector(100, 0, 0)), False)
sketch26.addGeometry(Part.LineSegment(Vector(100, 0, 0), Vector(100, 85, 0)), False)
sketch26.addGeometry(Part.LineSegment(Vector(100, 85, 0), Vector(-2, 85, 0)), False)
sketch26.addConstraint(Sketcher.Constraint("Coincident", 0, 2, 1, 1))
sketch26.addConstraint(Sketcher.Constraint("Coincident", 1, 2, 2, 1))
sketch26.addConstraint(Sketcher.Constraint("Coincident", 2, 2, 3, 1))
sketch26.addConstraint(Sketcher.Constraint("Coincident", 3, 2, 0, 1))
sketch26.addConstraint(Sketcher.Constraint("Vertical", 0))
sketch26.addConstraint(Sketcher.Constraint("Horizontal", 1))
sketch26.addConstraint(Sketcher.Constraint("Vertical", 2))
sketch26.addConstraint(Sketcher.Constraint("Horizontal", 3))
sketch26.addConstraint(Sketcher.Constraint("PointOnObject", 0, 2, -1))
sketch26.addConstraint(Sketcher.Constraint("DistanceX", 1, 1, 1, 2, Q("102 mm")))
sketch26.addConstraint(Sketcher.Constraint("DistanceY", 0, 2, 0, 1, Q("85 mm")))
sketch26.addConstraint(Sketcher.Constraint("DistanceX", 0, 2, -1, 1, Q("2 mm")))
pad26 = body29.newObject("PartDesign::Pad", "Pad025")
pad26.Profile = sketch26
pad26.Length = 4
doc.recompute()

boolean25 = body29.newObject("PartDesign::Boolean", "Boolean024")
boolean25.Type = "Cut"
boolean25.addObjects([body28])
doc.recompute()

boolean26 = body29.newObject("PartDesign::Boolean", "Boolean025")
boolean26.Type = "Cut"
boolean26.addObjects([body27])
doc.recompute()

boolean27 = body29.newObject("PartDesign::Boolean", "Boolean026")
boolean27.Type = "Cut"
boolean27.addObjects([body25])
doc.recompute()

boolean28 = body29.newObject("PartDesign::Boolean", "Boolean027")
boolean28.Type = "Cut"
boolean28.addObjects([body20])

doc.recompute()
